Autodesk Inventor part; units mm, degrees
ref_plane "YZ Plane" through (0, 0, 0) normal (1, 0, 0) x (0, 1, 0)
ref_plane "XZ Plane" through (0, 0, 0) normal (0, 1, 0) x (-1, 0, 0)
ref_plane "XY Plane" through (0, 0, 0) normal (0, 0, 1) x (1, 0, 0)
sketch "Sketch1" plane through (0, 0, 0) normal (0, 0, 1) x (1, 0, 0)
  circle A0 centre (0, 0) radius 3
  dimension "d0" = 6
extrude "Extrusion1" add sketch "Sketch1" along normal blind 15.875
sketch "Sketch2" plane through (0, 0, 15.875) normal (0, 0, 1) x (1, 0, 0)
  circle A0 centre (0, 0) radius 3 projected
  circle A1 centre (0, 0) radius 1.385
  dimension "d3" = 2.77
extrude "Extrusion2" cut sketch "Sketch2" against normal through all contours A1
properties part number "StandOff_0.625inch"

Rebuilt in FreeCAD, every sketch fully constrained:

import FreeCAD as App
import Part
import Sketcher

V = App.Vector

doc = App.newDocument("Part")
body = doc.addObject("PartDesign::Body", "Body")

# Sketch on XY plane
sketch1 = body.newObject("Sketcher::SketchObject", "Sketch")
sketch1.AttachmentSupport = (doc.getObject("XY_Plane"), [""])
sketch1.MapMode = "FlatFace"
sketch1.addGeometry(Part.Circle(V(0, 0, 0), V(0, 0, 1), 3), False)
sketch1.addConstraint(Sketcher.Constraint("Coincident", 0, 3, -1, 1))
sketch1.addConstraint(Sketcher.Constraint("Diameter", 0, 6.0))
pad1 = body.newObject("PartDesign::Pad", "Pad")
pad1.Profile = sketch1
pad1.Length = 15.875

# Sketch on XY plane
sketch2 = body.newObject("Sketcher::SketchObject", "Sketch001")
sketch2.AttachmentSupport = (doc.getObject("XY_Plane"), [""])
sketch2.MapMode = "FlatFace"
sketch2.AttachmentOffset = App.Placement(V(0, 0, 15.875), App.Rotation())
sketch2.addGeometry(Part.Circle(V(0, 0, 0), V(0, 0, 1), 1.4), False)
sketch2.addConstraint(Sketcher.Constraint("Coincident", 0, 3, -1, 1))
sketch2.addConstraint(Sketcher.Constraint("Diameter", 0, 2.77))
pocket1 = body.newObject("PartDesign::Pocket", "Pocket")
pocket1.Profile = sketch2
pocket1.Type = "ThroughAll"

doc.recompute()
